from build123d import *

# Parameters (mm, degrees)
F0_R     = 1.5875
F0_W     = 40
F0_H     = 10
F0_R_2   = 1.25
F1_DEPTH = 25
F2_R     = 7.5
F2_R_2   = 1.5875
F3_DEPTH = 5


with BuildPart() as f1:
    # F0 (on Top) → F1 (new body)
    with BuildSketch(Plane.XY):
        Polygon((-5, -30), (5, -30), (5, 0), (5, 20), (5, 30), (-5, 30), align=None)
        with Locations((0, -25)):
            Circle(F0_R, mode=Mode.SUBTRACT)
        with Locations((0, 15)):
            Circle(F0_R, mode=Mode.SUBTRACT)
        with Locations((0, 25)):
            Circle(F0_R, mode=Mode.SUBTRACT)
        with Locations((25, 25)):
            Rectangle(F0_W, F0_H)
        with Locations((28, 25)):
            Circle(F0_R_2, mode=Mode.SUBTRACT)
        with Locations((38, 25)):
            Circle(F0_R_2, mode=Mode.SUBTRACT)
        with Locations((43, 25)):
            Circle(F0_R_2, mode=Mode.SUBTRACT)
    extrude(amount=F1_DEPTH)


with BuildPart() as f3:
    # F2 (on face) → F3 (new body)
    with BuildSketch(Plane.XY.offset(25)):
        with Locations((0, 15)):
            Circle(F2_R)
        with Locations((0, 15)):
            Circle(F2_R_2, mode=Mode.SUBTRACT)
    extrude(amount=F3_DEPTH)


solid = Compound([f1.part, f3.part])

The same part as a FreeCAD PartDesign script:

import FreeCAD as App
import Part
import Sketcher
Q = App.Units.Quantity

doc = App.newDocument("Part")
body = doc.addObject("PartDesign::Body", "Body")

sketch1 = body.newObject("Sketcher::SketchObject", "Sketch")
sketch1.AttachmentSupport = (doc.getObject("XY_Plane"), [""])
sketch1.MapMode = "FlatFace"
sketch1.addGeometry(Part.LineSegment(App.Vector(-5, -30, 0), App.Vector(5, -30, 0)), False)
sketch1.addGeometry(Part.LineSegment(App.Vector(5, -30, 0), App.Vector(5, 20, 0)), False)
sketch1.addGeometry(Part.LineSegment(App.Vector(5, 20, 0), App.Vector(45, 20, 0)), False)
sketch1.addGeometry(Part.LineSegment(App.Vector(45, 20, 0), App.Vector(45, 30, 0)), False)
sketch1.addGeometry(Part.LineSegment(App.Vector(45, 30, 0), App.Vector(-5, 30, 0)), False)
sketch1.addGeometry(Part.LineSegment(App.Vector(-5, 30, 0), App.Vector(-5, -30, 0)), False)
sketch1.addGeometry(Part.Circle(App.Vector(0, -25, 0), App.Vector(0, 0, 1), 1.5875), False)
sketch1.addGeometry(Part.Circle(App.Vector(0, 15, 0), App.Vector(0, 0, 1), 1.5875), False)
sketch1.addGeometry(Part.Circle(App.Vector(0, 25, 0), App.Vector(0, 0, 1), 1.5875), False)
sketch1.addGeometry(Part.Circle(App.Vector(28, 25, 0), App.Vector(0, 0, 1), 1.25), False)
sketch1.addGeometry(Part.Circle(App.Vector(38, 25, 0), App.Vector(0, 0, 1), 1.25), False)
sketch1.addGeometry(Part.Circle(App.Vector(43, 25, 0), App.Vector(0, 0, 1), 1.25), False)
sketch1.addConstraint(Sketcher.Constraint("Coincident", 0, 2, 1, 1))
sketch1.addConstraint(Sketcher.Constraint("Coincident", 1, 2, 2, 1))
sketch1.addConstraint(Sketcher.Constraint("Coincident", 2, 2, 3, 1))
sketch1.addConstraint(Sketcher.Constraint("Coincident", 3, 2, 4, 1))
sketch1.addConstraint(Sketcher.Constraint("Coincident", 4, 2, 5, 1))
sketch1.addConstraint(Sketcher.Constraint("Coincident", 5, 2, 0, 1))
sketch1.addConstraint(Sketcher.Constraint("Horizontal", 0))
sketch1.addConstraint(Sketcher.Constraint("Vertical", 1))
sketch1.addConstraint(Sketcher.Constraint("Horizontal", 2))
sketch1.addConstraint(Sketcher.Constraint("Vertical", 3))
sketch1.addConstraint(Sketcher.Constraint("Horizontal", 4))
sketch1.addConstraint(Sketcher.Constraint("Vertical", 5))
sketch1.addConstraint(Sketcher.Constraint("Equal", 6, 7))
sketch1.addConstraint(Sketcher.Constraint("Equal", 7, 8))
sketch1.addConstraint(Sketcher.Constraint("Equal", 9, 10))
sketch1.addConstraint(Sketcher.Constraint("Equal", 10, 11))
sketch1.addConstraint(Sketcher.Constraint("Symmetric", 6, 3, 8, 3, -1, 1))
sketch1.addConstraint(Sketcher.Constraint("Symmetric", 0, 2, 4, 2, -1, 1))
sketch1.addConstraint(Sketcher.Constraint("PointOnObject", 6, 3, -2))
sketch1.addConstraint(Sketcher.Constraint("PointOnObject", 7, 3, -2))
sketch1.addConstraint(Sketcher.Constraint("Horizontal", 8, 3, 9, 3))
sketch1.addConstraint(Sketcher.Constraint("Horizontal", 9, 3, 10, 3))
sketch1.addConstraint(Sketcher.Constraint("Horizontal", 10, 3, 11, 3))
sketch1.addConstraint(Sketcher.Constraint("Equal", 4, 1))
sketch1.addConstraint(Sketcher.Constraint("Equal", 0, 3))
sketch1.addConstraint(Sketcher.Constraint("Diameter", 9, Q("2.5 mm")))
sketch1.addConstraint(Sketcher.Constraint("DistanceX", 0, 1, 0, 2, Q("10 mm")))
sketch1.addConstraint(Sketcher.Constraint("DistanceX", 2, 1, 2, 2, Q("40 mm")))
sketch1.addConstraint(Sketcher.Constraint("Diameter", 6, Q("3.175 mm")))
sketch1.addConstraint(Sketcher.Constraint("DistanceY", 6, 3, -1, 1, Q("25 mm")))
sketch1.addConstraint(Sketcher.Constraint("DistanceY", -1, 1, 7, 3, Q("15 mm")))
sketch1.addConstraint(Sketcher.Constraint("DistanceX", -1, 1, 9, 3, Q("28 mm")))
sketch1.addConstraint(Sketcher.Constraint("DistanceX", -1, 1, 10, 3, Q("38 mm")))
sketch1.addConstraint(Sketcher.Constraint("DistanceX", -1, 1, 11, 3, Q("43 mm")))
pad1 = body.newObject("PartDesign::Pad", "Pad")
pad1.Profile = sketch1
pad1.Length = 25
body2 = doc.addObject("PartDesign::Body", "Body001")

sketch2 = body2.newObject("Sketcher::SketchObject", "Sketch001")
sketch2.AttachmentSupport = (doc.getObject("XY_Plane001"), [""])
sketch2.MapMode = "FlatFace"
sketch2.AttachmentOffset = App.Placement(App.Vector(0, 0, 25), App.Rotation())
sketch2.addGeometry(Part.Circle(App.Vector(0, 15, 0), App.Vector(0, 0, 1), 7.5), False)
sketch2.addGeometry(Part.Circle(App.Vector(0, 15, 0), App.Vector(0, 0, 1), 1.5875), False)
sketch2.addConstraint(Sketcher.Constraint("Coincident", 1, 3, 0, 3))
sketch2.addConstraint(Sketcher.Constraint("PointOnObject", 0, 3, -2))
sketch2.addConstraint(Sketcher.Constraint("Diameter", 0, Q("15 mm")))
sketch2.addConstraint(Sketcher.Constraint("Diameter", 1, Q("3.175 mm")))
sketch2.addConstraint(Sketcher.Constraint("DistanceY", -1, 1, 0, 3, Q("15 mm")))
pad2 = body2.newObject("PartDesign::Pad", "Pad001")
pad2.Profile = sketch2
pad2.Length = 5

doc.recompute()
